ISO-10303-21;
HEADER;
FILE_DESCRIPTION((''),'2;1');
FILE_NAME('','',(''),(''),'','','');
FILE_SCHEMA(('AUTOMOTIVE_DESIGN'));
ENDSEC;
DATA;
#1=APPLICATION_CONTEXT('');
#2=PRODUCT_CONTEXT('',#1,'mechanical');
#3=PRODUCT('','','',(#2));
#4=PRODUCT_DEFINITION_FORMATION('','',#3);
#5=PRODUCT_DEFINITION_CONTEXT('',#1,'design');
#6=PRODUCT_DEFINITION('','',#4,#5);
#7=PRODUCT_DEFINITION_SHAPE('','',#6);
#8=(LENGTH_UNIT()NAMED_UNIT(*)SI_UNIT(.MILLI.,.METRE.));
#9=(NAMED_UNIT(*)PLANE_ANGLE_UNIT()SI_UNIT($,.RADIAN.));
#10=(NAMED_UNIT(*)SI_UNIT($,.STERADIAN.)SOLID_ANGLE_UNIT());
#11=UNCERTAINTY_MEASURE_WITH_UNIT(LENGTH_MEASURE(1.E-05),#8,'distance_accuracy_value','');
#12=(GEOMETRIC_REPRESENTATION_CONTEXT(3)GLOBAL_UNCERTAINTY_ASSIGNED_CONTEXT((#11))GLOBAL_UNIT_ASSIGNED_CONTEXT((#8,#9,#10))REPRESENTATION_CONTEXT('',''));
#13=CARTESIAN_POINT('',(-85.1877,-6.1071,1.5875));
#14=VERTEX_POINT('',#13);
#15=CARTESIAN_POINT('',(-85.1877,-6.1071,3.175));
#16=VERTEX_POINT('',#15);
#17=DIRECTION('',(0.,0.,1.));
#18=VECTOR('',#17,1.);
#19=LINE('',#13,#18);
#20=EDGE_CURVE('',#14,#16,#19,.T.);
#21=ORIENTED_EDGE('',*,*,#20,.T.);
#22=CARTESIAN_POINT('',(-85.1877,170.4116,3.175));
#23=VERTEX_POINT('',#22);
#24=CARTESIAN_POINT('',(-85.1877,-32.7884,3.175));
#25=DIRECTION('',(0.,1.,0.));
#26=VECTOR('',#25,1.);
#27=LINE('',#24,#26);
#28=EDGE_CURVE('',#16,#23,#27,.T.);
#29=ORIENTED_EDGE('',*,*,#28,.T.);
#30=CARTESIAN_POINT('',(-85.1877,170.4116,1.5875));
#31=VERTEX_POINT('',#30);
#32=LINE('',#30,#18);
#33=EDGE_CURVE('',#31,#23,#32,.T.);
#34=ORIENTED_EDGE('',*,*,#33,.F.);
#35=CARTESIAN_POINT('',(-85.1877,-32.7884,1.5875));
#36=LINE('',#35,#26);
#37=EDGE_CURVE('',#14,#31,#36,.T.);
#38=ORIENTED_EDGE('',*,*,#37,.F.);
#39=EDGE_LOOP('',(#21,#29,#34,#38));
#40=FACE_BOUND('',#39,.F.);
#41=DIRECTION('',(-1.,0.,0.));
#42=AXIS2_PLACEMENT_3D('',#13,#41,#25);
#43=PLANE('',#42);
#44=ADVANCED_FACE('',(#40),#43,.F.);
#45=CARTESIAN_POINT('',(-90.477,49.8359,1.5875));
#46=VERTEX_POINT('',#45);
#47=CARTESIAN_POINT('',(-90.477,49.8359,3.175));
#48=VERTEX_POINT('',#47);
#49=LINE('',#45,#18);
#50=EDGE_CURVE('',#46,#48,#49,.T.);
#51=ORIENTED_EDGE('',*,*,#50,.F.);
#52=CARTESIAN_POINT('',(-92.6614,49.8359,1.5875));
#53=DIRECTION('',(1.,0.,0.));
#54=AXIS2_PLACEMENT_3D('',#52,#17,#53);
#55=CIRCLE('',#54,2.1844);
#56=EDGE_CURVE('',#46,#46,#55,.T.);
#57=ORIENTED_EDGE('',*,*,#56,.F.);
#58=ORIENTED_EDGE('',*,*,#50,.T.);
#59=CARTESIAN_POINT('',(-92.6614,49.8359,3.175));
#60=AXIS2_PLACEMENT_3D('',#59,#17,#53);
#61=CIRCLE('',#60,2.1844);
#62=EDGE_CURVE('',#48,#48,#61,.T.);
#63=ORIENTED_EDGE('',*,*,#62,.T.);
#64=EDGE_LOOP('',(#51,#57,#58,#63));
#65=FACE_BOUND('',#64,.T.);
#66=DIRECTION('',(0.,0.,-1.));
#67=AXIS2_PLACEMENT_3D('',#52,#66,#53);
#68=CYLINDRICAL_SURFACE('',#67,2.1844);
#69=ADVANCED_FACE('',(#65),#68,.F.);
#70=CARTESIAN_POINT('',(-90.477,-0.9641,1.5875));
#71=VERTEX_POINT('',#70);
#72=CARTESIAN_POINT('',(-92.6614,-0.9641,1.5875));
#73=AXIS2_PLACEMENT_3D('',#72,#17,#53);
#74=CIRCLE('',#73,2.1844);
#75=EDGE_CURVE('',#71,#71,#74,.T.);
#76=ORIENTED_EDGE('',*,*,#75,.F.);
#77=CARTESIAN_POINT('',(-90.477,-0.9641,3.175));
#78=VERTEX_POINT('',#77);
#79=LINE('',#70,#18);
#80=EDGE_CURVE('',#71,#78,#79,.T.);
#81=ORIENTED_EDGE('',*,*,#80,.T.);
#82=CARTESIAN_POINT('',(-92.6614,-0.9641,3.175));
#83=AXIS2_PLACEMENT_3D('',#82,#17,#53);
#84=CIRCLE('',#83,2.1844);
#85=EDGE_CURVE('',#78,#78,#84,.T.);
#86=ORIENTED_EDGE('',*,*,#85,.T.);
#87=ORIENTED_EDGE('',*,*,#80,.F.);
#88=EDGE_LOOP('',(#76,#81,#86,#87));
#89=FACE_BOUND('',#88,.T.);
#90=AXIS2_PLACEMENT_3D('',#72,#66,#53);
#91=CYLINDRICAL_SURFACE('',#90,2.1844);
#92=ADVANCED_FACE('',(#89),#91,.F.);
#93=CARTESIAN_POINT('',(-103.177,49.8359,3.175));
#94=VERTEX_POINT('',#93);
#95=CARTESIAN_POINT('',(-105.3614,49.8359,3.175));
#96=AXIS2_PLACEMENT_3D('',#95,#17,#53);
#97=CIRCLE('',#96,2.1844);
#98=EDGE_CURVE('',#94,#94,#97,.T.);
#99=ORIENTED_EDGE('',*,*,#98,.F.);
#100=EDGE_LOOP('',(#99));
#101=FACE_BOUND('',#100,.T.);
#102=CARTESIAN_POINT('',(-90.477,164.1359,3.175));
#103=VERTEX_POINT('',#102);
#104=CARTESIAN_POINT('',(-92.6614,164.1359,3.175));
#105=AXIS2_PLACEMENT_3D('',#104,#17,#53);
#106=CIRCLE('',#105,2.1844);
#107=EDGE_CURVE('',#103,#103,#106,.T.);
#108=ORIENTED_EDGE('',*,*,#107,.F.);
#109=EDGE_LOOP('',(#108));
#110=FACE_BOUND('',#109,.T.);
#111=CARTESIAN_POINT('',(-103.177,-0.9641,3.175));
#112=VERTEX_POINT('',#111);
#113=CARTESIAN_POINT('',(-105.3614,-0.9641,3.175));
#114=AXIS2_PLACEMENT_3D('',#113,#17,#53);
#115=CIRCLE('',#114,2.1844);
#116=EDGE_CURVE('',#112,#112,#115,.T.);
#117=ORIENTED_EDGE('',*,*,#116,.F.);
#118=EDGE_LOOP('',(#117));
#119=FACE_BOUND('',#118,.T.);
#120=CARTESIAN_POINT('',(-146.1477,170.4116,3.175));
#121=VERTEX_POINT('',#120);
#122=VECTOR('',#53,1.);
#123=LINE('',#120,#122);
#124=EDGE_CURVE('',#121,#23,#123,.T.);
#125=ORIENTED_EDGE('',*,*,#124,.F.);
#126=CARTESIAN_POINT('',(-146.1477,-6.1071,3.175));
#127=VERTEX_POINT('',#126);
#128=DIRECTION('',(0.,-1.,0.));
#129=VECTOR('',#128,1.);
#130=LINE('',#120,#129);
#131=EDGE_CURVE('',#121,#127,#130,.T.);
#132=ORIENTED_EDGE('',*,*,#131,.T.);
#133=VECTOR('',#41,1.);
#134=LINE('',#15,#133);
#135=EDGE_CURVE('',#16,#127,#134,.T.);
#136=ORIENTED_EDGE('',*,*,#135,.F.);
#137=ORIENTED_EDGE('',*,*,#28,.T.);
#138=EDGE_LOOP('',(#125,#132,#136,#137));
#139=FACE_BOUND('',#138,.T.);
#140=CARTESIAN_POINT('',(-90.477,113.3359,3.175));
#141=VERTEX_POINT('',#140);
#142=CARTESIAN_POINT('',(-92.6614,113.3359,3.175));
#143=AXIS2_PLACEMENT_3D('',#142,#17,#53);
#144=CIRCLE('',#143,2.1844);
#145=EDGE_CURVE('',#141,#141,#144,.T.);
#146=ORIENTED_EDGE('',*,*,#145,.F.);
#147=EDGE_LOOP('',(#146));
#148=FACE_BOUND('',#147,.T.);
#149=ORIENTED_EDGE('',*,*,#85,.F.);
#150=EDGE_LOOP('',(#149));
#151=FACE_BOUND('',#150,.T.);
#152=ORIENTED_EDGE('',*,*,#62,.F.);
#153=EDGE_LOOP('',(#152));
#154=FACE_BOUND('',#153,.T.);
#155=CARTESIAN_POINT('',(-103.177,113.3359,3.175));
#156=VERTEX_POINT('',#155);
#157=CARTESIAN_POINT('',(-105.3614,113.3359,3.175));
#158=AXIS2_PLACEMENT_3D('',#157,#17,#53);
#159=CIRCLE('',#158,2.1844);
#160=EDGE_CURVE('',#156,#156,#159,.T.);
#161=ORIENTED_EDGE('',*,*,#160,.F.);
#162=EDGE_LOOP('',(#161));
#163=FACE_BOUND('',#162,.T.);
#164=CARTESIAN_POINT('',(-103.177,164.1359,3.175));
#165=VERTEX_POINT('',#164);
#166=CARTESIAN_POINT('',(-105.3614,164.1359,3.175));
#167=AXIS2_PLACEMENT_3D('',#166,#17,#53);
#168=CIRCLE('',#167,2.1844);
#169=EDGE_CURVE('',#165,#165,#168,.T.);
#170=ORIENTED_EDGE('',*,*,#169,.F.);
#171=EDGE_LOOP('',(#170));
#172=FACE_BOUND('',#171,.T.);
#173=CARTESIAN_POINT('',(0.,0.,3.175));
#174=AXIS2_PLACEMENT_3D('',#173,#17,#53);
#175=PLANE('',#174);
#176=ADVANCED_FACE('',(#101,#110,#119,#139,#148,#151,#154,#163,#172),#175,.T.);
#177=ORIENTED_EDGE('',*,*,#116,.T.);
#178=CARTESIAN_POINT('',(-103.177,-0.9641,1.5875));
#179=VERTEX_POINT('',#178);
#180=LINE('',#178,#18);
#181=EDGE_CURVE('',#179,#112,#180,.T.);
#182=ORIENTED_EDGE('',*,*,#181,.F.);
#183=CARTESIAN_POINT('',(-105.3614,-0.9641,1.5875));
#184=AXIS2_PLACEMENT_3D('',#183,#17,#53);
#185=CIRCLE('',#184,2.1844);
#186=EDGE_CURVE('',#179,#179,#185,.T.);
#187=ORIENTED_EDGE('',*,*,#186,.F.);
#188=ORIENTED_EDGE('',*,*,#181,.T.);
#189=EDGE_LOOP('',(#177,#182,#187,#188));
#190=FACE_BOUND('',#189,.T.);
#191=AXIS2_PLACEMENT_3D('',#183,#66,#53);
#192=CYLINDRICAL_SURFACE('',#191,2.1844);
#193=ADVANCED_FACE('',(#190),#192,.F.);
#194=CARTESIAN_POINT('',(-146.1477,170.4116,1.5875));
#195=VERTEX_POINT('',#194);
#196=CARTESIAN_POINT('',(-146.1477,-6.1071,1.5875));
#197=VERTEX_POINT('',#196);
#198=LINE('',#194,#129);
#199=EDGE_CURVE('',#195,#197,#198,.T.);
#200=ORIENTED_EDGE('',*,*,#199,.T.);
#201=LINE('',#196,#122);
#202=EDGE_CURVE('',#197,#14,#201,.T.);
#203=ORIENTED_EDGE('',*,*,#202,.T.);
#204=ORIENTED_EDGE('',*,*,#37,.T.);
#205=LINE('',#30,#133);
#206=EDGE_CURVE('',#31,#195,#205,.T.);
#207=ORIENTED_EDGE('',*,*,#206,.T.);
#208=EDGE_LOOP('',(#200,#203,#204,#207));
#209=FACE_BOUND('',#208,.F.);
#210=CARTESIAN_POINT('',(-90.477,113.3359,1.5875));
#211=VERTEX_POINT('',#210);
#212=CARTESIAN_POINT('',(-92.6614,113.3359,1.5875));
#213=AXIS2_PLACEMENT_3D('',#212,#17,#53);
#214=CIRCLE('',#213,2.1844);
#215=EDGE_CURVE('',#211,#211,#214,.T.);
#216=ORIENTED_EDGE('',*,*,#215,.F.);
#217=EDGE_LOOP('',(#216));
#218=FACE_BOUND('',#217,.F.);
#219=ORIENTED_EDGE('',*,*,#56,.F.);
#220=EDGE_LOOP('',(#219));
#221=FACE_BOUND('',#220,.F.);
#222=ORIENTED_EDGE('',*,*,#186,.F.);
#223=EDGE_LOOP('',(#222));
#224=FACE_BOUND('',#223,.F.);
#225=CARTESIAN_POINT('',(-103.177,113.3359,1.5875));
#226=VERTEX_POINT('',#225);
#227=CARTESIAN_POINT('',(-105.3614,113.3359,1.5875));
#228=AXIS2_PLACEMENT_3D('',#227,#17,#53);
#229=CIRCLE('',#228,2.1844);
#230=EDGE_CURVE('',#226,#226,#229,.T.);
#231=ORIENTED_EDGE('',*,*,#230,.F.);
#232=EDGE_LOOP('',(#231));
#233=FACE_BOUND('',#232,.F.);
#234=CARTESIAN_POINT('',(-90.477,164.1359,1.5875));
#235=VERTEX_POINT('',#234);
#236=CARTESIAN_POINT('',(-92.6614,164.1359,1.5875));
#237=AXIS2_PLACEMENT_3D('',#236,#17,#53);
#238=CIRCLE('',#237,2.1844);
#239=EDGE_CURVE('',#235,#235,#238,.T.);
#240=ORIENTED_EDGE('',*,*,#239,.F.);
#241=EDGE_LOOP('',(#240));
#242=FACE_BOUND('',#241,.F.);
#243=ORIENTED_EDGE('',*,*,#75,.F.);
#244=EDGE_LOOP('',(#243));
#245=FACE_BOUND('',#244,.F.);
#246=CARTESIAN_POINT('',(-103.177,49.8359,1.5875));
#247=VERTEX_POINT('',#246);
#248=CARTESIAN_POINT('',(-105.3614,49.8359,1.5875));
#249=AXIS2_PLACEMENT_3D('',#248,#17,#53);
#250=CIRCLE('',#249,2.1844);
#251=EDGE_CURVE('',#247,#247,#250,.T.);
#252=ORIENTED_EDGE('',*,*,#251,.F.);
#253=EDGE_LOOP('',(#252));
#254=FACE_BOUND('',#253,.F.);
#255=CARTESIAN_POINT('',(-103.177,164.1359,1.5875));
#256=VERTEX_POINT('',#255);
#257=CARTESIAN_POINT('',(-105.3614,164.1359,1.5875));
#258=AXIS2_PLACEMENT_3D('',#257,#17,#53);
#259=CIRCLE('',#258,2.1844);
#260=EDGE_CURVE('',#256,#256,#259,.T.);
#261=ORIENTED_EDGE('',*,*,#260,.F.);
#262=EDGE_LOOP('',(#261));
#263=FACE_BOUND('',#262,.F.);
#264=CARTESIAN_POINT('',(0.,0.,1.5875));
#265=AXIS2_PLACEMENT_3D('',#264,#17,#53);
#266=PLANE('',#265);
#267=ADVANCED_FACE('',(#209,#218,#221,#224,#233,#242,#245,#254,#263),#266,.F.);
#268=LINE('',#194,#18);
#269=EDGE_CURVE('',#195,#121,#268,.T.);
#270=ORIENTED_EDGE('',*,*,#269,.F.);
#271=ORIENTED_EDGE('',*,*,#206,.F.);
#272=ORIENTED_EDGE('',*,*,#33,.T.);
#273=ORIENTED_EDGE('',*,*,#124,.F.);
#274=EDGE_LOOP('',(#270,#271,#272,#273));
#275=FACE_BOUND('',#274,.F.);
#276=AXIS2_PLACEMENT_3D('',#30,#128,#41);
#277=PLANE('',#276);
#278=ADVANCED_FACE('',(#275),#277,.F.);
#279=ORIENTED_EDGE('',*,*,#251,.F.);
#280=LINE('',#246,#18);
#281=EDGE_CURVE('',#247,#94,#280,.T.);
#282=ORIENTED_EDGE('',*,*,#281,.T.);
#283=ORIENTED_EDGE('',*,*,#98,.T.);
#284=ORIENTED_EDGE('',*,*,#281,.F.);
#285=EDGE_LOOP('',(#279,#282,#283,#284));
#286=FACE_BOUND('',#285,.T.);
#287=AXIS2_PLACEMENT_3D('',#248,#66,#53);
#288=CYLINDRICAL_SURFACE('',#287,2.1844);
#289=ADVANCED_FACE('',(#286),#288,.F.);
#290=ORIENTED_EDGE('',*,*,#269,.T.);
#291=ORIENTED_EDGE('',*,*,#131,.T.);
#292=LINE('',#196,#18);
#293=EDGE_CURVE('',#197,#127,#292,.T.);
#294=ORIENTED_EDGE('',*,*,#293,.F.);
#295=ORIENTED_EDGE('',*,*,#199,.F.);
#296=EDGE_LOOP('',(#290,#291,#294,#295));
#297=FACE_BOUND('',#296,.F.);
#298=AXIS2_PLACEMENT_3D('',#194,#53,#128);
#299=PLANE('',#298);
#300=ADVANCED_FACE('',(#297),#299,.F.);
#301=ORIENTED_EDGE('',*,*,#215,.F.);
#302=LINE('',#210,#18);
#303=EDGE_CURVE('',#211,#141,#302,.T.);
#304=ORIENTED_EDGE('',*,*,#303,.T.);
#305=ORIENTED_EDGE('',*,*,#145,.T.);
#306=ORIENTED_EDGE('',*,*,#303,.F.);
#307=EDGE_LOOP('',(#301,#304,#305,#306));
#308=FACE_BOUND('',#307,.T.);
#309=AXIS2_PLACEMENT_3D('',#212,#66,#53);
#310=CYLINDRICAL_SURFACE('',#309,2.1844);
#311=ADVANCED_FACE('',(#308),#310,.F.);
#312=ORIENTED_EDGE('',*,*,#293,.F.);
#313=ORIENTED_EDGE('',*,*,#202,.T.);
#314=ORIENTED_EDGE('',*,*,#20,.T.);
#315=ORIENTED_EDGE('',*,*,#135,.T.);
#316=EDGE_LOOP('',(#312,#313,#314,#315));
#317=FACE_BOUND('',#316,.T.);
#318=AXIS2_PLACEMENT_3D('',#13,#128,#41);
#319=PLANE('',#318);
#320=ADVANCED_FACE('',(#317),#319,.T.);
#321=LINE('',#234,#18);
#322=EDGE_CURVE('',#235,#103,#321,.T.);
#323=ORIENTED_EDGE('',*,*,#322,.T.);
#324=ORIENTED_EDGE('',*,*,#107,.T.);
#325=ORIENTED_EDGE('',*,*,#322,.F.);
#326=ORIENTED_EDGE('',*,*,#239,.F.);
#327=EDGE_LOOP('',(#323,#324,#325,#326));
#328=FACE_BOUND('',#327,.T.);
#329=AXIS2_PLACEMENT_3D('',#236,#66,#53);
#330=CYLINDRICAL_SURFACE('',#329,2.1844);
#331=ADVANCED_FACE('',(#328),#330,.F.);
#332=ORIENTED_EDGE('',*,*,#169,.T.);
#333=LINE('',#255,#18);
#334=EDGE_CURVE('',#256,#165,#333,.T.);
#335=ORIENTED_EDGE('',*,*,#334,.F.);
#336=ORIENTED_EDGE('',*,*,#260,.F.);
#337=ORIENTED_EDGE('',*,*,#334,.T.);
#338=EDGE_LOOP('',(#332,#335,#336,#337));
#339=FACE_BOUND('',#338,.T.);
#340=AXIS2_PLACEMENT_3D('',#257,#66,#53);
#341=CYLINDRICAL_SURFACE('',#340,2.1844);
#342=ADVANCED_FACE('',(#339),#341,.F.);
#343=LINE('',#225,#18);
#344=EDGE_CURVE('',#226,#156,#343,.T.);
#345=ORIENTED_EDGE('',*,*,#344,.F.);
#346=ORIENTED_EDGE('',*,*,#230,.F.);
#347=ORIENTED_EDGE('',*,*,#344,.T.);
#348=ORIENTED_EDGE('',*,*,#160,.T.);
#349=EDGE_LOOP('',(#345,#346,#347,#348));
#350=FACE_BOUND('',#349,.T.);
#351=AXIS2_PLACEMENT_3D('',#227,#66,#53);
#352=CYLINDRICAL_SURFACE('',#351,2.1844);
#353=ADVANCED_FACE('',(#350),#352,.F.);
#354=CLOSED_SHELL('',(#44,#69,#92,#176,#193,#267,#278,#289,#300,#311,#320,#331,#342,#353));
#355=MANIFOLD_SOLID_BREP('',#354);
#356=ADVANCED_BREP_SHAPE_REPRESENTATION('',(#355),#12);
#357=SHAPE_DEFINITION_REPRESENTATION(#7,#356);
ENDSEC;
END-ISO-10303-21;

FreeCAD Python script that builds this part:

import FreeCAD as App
import Part
import Sketcher
from FreeCAD import Vector
Q = App.Units.Quantity

doc = App.newDocument("Part")
body = doc.addObject("PartDesign::Body", "Body")

sketch1 = doc.addObject("Sketcher::SketchObject", "Sketch")
body.addObject(sketch1)
sketch1.AttachmentSupport = (doc.XY_Plane, [""])
sketch1.MapMode = "FlatFace"
sketch1.AttachmentOffset = App.Placement(Vector(0, 0, 0.0625 * 25.4), App.Rotation())
sketch1.addGeometry([
    Part.LineSegment(Vector(-85.2, -6.1, 0), Vector(-85.2, 170.4, 0)),
    Part.LineSegment(Vector(-85.2, 170.4, 0), Vector(-146.1, 170.4, 0)),
    Part.LineSegment(Vector(-146.1, 170.4, 0), Vector(-146.1, -6.1, 0)),
    Part.LineSegment(Vector(-146.1, -6.1, 0), Vector(-85.2, -6.1, 0)),
    Part.Circle(Vector(-105.4, -1, 0), Vector(0, 0, 1), 2.2),
    Part.Circle(Vector(-92.7, -1, 0), Vector(0, 0, 1), 2.2),
    Part.Circle(Vector(-105.4, 49.8, 0), Vector(0, 0, 1), 2.2),
    Part.Circle(Vector(-92.7, 49.8, 0), Vector(0, 0, 1), 2.2),
    Part.Circle(Vector(-105.4, 113.3, 0), Vector(0, 0, 1), 2.2),
    Part.Circle(Vector(-92.7, 113.3, 0), Vector(0, 0, 1), 2.2),
    Part.Circle(Vector(-105.4, 164.1, 0), Vector(0, 0, 1), 2.2),
    Part.Circle(Vector(-92.7, 164.1, 0), Vector(0, 0, 1), 2.2),
], False)
sketch1.addConstraint([
    Sketcher.Constraint("Coincident", 0, 2, 1, 1),
    Sketcher.Constraint("Coincident", 1, 2, 2, 1),
    Sketcher.Constraint("Coincident", 2, 2, 3, 1),
    Sketcher.Constraint("Coincident", 3, 2, 0, 1),
    Sketcher.Constraint("Vertical", 0),
    Sketcher.Constraint("Horizontal", 1),
    Sketcher.Constraint("Vertical", 2),
    Sketcher.Constraint("Horizontal", 3),
    Sketcher.Constraint("Equal", 4, 5),
    Sketcher.Constraint("Equal", 5, 6),
    Sketcher.Constraint("Equal", 6, 7),
    Sketcher.Constraint("Equal", 7, 8),
    Sketcher.Constraint("Equal", 8, 9),
    Sketcher.Constraint("Equal", 9, 10),
    Sketcher.Constraint("Equal", 10, 11),
    Sketcher.Constraint("Horizontal", 4, 3, 5, 3),
    Sketcher.Constraint("Horizontal", 6, 3, 7, 3),
    Sketcher.Constraint("Horizontal", 8, 3, 9, 3),
    Sketcher.Constraint("Horizontal", 10, 3, 11, 3),
    Sketcher.Constraint("Vertical", 4, 3, 6, 3),
    Sketcher.Constraint("Vertical", 5, 3, 7, 3),
    Sketcher.Constraint("Vertical", 6, 3, 8, 3),
    Sketcher.Constraint("Vertical", 7, 3, 9, 3),
    Sketcher.Constraint("Vertical", 8, 3, 10, 3),
    Sketcher.Constraint("Vertical", 9, 3, 11, 3),
    Sketcher.Constraint("DistanceX", 1, 2, 1, 1, Q("2.4 in")),
    Sketcher.Constraint("Diameter", 4, Q("0.172 in")),
    Sketcher.Constraint("DistanceY", 4, 3, 6, 3, Q("2 in")),
    Sketcher.Constraint("DistanceY", 8, 3, 10, 3, Q("2 in")),
    Sketcher.Constraint("DistanceX", 4, 3, 5, 3, Q("0.5 in")),
    Sketcher.Constraint("DistanceY", 6, 3, 8, 3, Q("2.5 in")),
    Sketcher.Constraint("DistanceY", 0, 1, 0, 2, 176.5187),
    Sketcher.Constraint("DistanceX", 4, 3, -1, 1, 105.3614),
    Sketcher.Constraint("DistanceY", 4, 3, -1, 1, 0.964),
    Sketcher.Constraint("DistanceX", 0, 2, -1, 1, 85.1877),
    Sketcher.Constraint("DistanceY", -1, 1, 0, 2, 170.4116),
])
pad1 = doc.addObject("PartDesign::Pad", "Pad")
body.addObject(pad1)
pad1.Profile = sketch1
pad1.Length = Q("0.0625 in")

doc.recompute()
